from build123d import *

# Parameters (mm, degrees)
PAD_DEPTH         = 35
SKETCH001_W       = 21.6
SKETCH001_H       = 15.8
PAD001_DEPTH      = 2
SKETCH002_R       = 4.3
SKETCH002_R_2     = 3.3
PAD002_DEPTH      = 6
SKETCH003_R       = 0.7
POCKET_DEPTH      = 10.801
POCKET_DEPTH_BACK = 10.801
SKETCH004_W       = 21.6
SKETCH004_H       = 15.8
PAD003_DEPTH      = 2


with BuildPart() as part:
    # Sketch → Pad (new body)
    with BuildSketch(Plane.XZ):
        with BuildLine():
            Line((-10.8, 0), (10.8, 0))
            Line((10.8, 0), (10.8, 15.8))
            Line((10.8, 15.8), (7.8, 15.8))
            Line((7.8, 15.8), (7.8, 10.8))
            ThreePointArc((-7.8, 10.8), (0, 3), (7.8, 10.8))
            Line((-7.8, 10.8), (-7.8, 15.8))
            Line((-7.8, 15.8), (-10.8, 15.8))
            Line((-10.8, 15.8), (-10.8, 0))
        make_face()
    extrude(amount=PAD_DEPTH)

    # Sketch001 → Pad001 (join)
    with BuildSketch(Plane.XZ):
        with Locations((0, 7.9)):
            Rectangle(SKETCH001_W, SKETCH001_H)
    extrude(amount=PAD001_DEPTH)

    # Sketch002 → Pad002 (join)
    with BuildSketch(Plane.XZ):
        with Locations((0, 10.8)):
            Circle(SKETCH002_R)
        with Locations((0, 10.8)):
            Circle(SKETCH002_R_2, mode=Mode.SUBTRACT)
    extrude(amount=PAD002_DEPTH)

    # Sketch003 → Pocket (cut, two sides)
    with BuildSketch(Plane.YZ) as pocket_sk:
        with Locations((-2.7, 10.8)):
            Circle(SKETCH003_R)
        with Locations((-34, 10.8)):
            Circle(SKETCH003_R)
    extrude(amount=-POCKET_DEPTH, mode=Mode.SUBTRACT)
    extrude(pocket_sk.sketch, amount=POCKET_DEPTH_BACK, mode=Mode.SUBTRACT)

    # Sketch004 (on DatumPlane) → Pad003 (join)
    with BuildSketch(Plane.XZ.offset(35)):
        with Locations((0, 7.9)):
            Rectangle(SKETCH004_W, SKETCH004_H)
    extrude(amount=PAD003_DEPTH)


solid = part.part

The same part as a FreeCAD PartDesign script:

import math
import FreeCAD as App
import Part
import Sketcher
from FreeCAD import Vector


def add_polygon(sketch, points):
    """Adds a closed chain of lines whose ends are joined by coincident constraints."""
    first, n = sketch.GeometryCount, len(points)
    for a, b in zip(points, points[1:] + points[:1]):
        sketch.addGeometry(Part.LineSegment(App.Vector(*a, 0), App.Vector(*b, 0)), False)
    for i in range(n):
        sketch.addConstraint(Sketcher.Constraint("Coincident", first + i, 2, first + (i + 1) % n, 1))

doc = App.newDocument("Part")
body = doc.addObject("PartDesign::Body", "Body")

# Sketch on XZ plane
sketch1 = body.newObject("Sketcher::SketchObject", "Sketch")
sketch1.AttachmentSupport = (doc.getObject("XZ_Plane"), [""])
sketch1.MapMode = "FlatFace"
sketch1.addGeometry(Part.LineSegment(Vector(-10.8, 0, 0), Vector(10.8, 0, 0)), False)
sketch1.addGeometry(Part.LineSegment(Vector(10.8, 0, 0), Vector(10.8, 15.8, 0)), False)
sketch1.addGeometry(Part.LineSegment(Vector(10.8, 15.8, 0), Vector(7.8, 15.8, 0)), False)
sketch1.addGeometry(Part.LineSegment(Vector(7.8, 15.8, 0), Vector(7.8, 10.8, 0)), False)
sketch1.addGeometry(Part.ArcOfCircle(Part.Circle(Vector(0, 10.8, 0), Vector(0, 0, 1), 7.8), math.radians(180), math.radians(360)), False)
sketch1.addGeometry(Part.LineSegment(Vector(-7.8, 10.8, 0), Vector(-7.8, 15.8, 0)), False)
sketch1.addGeometry(Part.LineSegment(Vector(-7.8, 15.8, 0), Vector(-10.8, 15.8, 0)), False)
sketch1.addGeometry(Part.LineSegment(Vector(-10.8, 15.8, 0), Vector(-10.8, 0, 0)), False)
sketch1.addConstraint(Sketcher.Constraint("Coincident", 0, 2, 1, 1))
sketch1.addConstraint(Sketcher.Constraint("Coincident", 1, 2, 2, 1))
sketch1.addConstraint(Sketcher.Constraint("Coincident", 2, 2, 3, 1))
sketch1.addConstraint(Sketcher.Constraint("Tangent", 3, 2, 4, 2))
sketch1.addConstraint(Sketcher.Constraint("Tangent", 4, 1, 5, 1))
sketch1.addConstraint(Sketcher.Constraint("Coincident", 5, 2, 6, 1))
sketch1.addConstraint(Sketcher.Constraint("Coincident", 6, 2, 7, 1))
sketch1.addConstraint(Sketcher.Constraint("Coincident", 7, 2, 0, 1))
sketch1.addConstraint(Sketcher.Constraint("Horizontal", 0))
sketch1.addConstraint(Sketcher.Constraint("Vertical", 1))
sketch1.addConstraint(Sketcher.Constraint("Horizontal", 2))
sketch1.addConstraint(Sketcher.Constraint("Vertical", 3))
sketch1.addConstraint(Sketcher.Constraint("Vertical", 5))
sketch1.addConstraint(Sketcher.Constraint("Horizontal", 6))
sketch1.addConstraint(Sketcher.Constraint("Vertical", 7))
sketch1.addConstraint(Sketcher.Constraint("Symmetric", 0, 2, 7, 2, -1, 1))
sketch1.addConstraint(Sketcher.Constraint("Symmetric", 2, 2, 5, 2, -2))
sketch1.addConstraint(Sketcher.Constraint("Radius", 4, 7.8))
sketch1.addConstraint(Sketcher.Constraint("DistanceX", 2, 2, 2, 1, 3.0))
sketch1.addConstraint(Sketcher.Constraint("DistanceY", 3, 2, 3, 1, 5.0))
sketch1.addConstraint(Sketcher.Constraint("DistanceY", 1, 1, 1, 2, 15.8))
pad1 = body.newObject("PartDesign::Pad", "Pad")
pad1.Profile = sketch1
pad1.Length = 35

# Sketch on XZ plane
sketch2 = body.newObject("Sketcher::SketchObject", "Sketch001")
sketch2.AttachmentSupport = (doc.getObject("XZ_Plane"), [""])
sketch2.MapMode = "FlatFace"
add_polygon(sketch2, [(-11, 16), (-11, 0), (11, 0), (11, 16)])  # lines 0-3
sketch2.addConstraint(Sketcher.Constraint("Vertical", 0))
sketch2.addConstraint(Sketcher.Constraint("Horizontal", 1))
sketch2.addConstraint(Sketcher.Constraint("Vertical", 2))
sketch2.addConstraint(Sketcher.Constraint("Horizontal", 3))
sketch2.addConstraint(Sketcher.Constraint("Symmetric", 0, 2, 1, 2, -1, 1))
sketch2.addConstraint(Sketcher.Constraint("DistanceX", 1, 1, 1, 2, 21.6))
sketch2.addConstraint(Sketcher.Constraint("DistanceY", 0, 2, 0, 1, 15.8))
pad2 = body.newObject("PartDesign::Pad", "Pad001")
pad2.Profile = sketch2
pad2.Length = 2

# Sketch on XZ plane
sketch3 = body.newObject("Sketcher::SketchObject", "Sketch002")
sketch3.AttachmentSupport = (doc.getObject("XZ_Plane"), [""])
sketch3.MapMode = "FlatFace"
sketch3.addGeometry(Part.Circle(Vector(0, 10.8, 0), Vector(0, 0, 1), 4.3), False)
sketch3.addGeometry(Part.Circle(Vector(0, 10.8, 0), Vector(0, 0, 1), 3.3), False)
sketch3.addConstraint(Sketcher.Constraint("Coincident", 1, 3, 0, 3))
sketch3.addConstraint(Sketcher.Constraint("PointOnObject", 0, 3, -2))
sketch3.addConstraint(Sketcher.Constraint("Diameter", 0, 8.6))
sketch3.addConstraint(Sketcher.Constraint("Diameter", 1, 6.6))
sketch3.addConstraint(Sketcher.Constraint("DistanceY", -1, 1, 0, 3, 10.8))
pad3 = body.newObject("PartDesign::Pad", "Pad002")
pad3.Profile = sketch3
pad3.Length = 6

# Sketch on YZ plane
sketch4 = body.newObject("Sketcher::SketchObject", "Sketch003")
sketch4.AttachmentSupport = (doc.getObject("YZ_Plane"), [""])
sketch4.MapMode = "FlatFace"
sketch4.addGeometry(Part.Circle(Vector(-2.7, 10.8, 0), Vector(0, 0, 1), 0.7), False)
sketch4.addGeometry(Part.Circle(Vector(-34, 10.8, 0), Vector(0, 0, 1), 0.7), False)
sketch4.addConstraint(Sketcher.Constraint("Equal", 0, 1))
sketch4.addConstraint(Sketcher.Constraint("Horizontal", 0, 3, 1, 3))
sketch4.addConstraint(Sketcher.Constraint("Diameter", 0, 1.4))
sketch4.addConstraint(Sketcher.Constraint("DistanceX", 1, 3, -1, 1, 34.0))
sketch4.addConstraint(Sketcher.Constraint("DistanceX", 0, 3, -1, 1, 2.7))
sketch4.addConstraint(Sketcher.Constraint("DistanceY", -1, 1, 0, 3, 10.8))
pocket1 = body.newObject("PartDesign::Pocket", "Pocket")
pocket1.Profile = sketch4
pocket1.Type = "ThroughAll"
pocket1.Midplane = True

# Sketch on XZ plane
sketch5 = body.newObject("Sketcher::SketchObject", "Sketch004")
sketch5.AttachmentSupport = (doc.getObject("XZ_Plane"), [""])
sketch5.MapMode = "FlatFace"
sketch5.AttachmentOffset = App.Placement(Vector(0, 0, 35), App.Rotation())
add_polygon(sketch5, [(-11, 16), (-11, 0), (11, 0), (11, 16)])  # lines 0-3
sketch5.addConstraint(Sketcher.Constraint("Vertical", 0))
sketch5.addConstraint(Sketcher.Constraint("Horizontal", 1))
sketch5.addConstraint(Sketcher.Constraint("Vertical", 2))
sketch5.addConstraint(Sketcher.Constraint("Horizontal", 3))
sketch5.addConstraint(Sketcher.Constraint("Symmetric", 0, 2, 1, 2, -1, 1))
sketch5.addConstraint(Sketcher.Constraint("DistanceX", 1, 1, 1, 2, 21.6))
sketch5.addConstraint(Sketcher.Constraint("DistanceY", 0, 2, 0, 1, 15.8))
pad4 = body.newObject("PartDesign::Pad", "Pad003")
pad4.Profile = sketch5
pad4.Length = 2

doc.recompute()
